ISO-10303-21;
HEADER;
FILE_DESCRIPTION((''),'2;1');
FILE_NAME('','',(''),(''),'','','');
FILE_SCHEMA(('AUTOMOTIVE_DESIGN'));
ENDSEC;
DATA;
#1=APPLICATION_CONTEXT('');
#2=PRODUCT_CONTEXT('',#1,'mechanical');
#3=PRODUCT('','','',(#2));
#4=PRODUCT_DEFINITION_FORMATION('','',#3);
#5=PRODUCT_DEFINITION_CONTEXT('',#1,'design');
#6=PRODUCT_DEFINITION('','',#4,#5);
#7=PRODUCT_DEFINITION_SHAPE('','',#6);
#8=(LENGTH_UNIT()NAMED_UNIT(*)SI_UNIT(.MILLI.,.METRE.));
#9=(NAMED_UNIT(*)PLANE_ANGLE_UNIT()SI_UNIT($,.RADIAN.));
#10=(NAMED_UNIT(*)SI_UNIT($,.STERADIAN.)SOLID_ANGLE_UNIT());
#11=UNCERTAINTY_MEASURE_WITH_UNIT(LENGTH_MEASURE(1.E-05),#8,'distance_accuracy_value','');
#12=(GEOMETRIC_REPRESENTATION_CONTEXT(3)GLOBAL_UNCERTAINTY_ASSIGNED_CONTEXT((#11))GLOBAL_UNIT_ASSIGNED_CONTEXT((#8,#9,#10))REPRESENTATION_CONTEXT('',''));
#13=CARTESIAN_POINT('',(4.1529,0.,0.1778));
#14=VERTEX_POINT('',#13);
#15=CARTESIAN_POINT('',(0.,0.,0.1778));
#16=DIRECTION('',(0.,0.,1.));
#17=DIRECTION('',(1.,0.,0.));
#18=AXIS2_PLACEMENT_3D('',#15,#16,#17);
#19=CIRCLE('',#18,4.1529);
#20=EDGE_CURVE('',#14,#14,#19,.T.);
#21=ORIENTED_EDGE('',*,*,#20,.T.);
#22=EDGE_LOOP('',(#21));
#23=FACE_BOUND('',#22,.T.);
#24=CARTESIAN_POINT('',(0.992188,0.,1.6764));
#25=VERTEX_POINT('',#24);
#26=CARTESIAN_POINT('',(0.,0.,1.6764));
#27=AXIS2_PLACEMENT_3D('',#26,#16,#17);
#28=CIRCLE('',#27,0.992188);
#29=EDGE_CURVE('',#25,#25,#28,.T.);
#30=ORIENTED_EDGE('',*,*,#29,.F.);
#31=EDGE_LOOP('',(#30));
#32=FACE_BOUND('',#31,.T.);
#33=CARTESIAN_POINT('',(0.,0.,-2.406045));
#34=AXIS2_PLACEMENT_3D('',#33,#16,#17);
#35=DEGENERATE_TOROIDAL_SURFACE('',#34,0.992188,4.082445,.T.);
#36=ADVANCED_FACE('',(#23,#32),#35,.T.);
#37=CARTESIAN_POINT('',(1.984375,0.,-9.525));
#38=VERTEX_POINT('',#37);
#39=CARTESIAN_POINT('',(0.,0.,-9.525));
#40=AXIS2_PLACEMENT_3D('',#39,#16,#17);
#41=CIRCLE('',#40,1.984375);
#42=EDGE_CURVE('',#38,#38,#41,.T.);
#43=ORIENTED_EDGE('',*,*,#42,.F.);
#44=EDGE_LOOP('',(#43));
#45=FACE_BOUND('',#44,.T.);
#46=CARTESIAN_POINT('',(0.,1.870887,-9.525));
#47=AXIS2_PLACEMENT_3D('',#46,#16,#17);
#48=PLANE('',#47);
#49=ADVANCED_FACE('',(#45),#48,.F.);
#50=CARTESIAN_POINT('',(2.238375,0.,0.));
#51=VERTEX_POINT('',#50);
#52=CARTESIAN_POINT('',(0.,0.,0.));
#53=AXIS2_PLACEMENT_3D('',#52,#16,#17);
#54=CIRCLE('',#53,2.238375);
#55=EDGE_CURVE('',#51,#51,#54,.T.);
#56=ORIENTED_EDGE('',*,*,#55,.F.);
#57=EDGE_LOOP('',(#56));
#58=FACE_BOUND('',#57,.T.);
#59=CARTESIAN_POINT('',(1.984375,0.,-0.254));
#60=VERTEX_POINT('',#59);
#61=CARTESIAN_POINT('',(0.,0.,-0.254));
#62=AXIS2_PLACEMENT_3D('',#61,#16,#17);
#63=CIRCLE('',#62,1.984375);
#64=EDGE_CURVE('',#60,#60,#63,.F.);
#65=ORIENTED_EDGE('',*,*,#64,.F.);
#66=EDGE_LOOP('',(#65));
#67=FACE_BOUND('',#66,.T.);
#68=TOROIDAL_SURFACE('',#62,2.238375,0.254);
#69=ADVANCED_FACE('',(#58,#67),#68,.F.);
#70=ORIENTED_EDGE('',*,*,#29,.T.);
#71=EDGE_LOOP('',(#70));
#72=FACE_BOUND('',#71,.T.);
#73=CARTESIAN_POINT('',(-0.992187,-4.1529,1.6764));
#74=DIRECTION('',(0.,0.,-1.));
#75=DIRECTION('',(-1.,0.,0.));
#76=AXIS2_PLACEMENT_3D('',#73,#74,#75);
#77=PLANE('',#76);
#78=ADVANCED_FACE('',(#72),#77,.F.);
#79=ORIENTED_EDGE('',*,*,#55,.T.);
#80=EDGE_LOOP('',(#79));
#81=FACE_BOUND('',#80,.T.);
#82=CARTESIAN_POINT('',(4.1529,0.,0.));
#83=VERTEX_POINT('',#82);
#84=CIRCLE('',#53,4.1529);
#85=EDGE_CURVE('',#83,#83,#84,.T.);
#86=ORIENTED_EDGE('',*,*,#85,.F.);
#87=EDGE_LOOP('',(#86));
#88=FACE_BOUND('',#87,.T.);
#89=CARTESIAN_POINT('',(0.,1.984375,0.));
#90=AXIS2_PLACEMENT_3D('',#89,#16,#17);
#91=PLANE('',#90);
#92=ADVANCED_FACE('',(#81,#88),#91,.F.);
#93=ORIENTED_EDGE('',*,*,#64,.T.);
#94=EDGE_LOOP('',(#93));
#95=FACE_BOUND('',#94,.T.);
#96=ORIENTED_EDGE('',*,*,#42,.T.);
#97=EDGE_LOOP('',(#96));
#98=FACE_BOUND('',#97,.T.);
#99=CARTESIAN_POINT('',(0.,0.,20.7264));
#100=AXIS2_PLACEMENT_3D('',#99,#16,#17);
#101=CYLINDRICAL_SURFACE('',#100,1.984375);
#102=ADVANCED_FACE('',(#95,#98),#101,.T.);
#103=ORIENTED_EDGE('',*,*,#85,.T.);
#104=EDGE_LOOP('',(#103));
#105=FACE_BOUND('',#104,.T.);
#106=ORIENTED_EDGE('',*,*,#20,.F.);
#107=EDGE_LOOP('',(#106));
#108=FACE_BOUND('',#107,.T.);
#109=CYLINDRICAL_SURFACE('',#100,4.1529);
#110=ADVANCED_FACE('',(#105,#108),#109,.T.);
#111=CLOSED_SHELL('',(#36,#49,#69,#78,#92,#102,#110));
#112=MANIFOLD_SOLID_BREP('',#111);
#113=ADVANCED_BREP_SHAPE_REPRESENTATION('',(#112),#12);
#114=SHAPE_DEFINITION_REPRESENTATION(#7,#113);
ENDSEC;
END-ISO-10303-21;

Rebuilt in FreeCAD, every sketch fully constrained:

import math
import FreeCAD as App
import Part
import Sketcher

V = App.Vector
Q = App.Units.Quantity


def edges_at(feature, points):
    """Names of the edges that pass closest to the given points."""
    edges = feature.Shape.Edges
    near = lambda p: min(range(len(edges)), key=lambda i: edges[i].distToShape(Part.Vertex(*p))[0])
    return sorted({f"Edge{near(p) + 1}" for p in points})


def add_polygon(sketch, points):
    """Adds a closed chain of lines whose ends are joined by coincident constraints."""
    first, n = sketch.GeometryCount, len(points)
    for a, b in zip(points, points[1:] + points[:1]):
        sketch.addGeometry(Part.LineSegment(App.Vector(*a, 0), App.Vector(*b, 0)), False)
    for i in range(n):
        sketch.addConstraint(Sketcher.Constraint("Coincident", first + i, 2, first + (i + 1) % n, 1))

doc = App.newDocument("Part")
body = doc.addObject("PartDesign::Body", "Body")

# Sketch on YZ plane
sketch1 = body.newObject("Sketcher::SketchObject", "Sketch")
sketch1.AttachmentSupport = (doc.getObject("YZ_Plane"), [""])
sketch1.MapMode = "FlatFace"
sketch1.addGeometry(Part.LineSegment(V(0.992188, 20.7264, 0), V(0, 20.7264, 0)), False)
sketch1.addGeometry(Part.LineSegment(V(0, 20.7264, 0), V(0, -9.525, 0)), False)
sketch1.addGeometry(Part.LineSegment(V(0, -9.525, 0), V(1.984375, -9.525, 0)), False)
sketch1.addGeometry(Part.LineSegment(V(1.984375, -9.525, 0), V(1.984375, 0, 0)), False)
sketch1.addGeometry(Part.LineSegment(V(1.984375, 0, 0), V(4.1529, 0, 0)), False)
sketch1.addGeometry(Part.LineSegment(V(4.1529, 0, 0), V(4.1529, 0.1778, 0)), False)
sketch1.addGeometry(Part.ArcOfCircle(Part.Circle(V(0.992188, -2.406045, 0), V(0, 0, 1), 4.082445), math.radians(39.265596), math.radians(90)), False)
sketch1.addGeometry(Part.LineSegment(V(0.992188, 1.6764, 0), V(0.992188, 20.7264, 0)), False)
sketch1.addConstraint(Sketcher.Constraint("Coincident", 0, 2, 1, 1))
sketch1.addConstraint(Sketcher.Constraint("Coincident", 1, 2, 2, 1))
sketch1.addConstraint(Sketcher.Constraint("Coincident", 2, 2, 3, 1))
sketch1.addConstraint(Sketcher.Constraint("Coincident", 3, 2, 4, 1))
sketch1.addConstraint(Sketcher.Constraint("Coincident", 4, 2, 5, 1))
sketch1.addConstraint(Sketcher.Constraint("Coincident", 5, 2, 6, 1))
sketch1.addConstraint(Sketcher.Constraint("Coincident", 6, 2, 7, 1))
sketch1.addConstraint(Sketcher.Constraint("Coincident", 7, 2, 0, 1))
sketch1.addConstraint(Sketcher.Constraint("Horizontal", 0))
sketch1.addConstraint(Sketcher.Constraint("Vertical", 1))
sketch1.addConstraint(Sketcher.Constraint("Horizontal", 2))
sketch1.addConstraint(Sketcher.Constraint("Vertical", 3))
sketch1.addConstraint(Sketcher.Constraint("Horizontal", 4))
sketch1.addConstraint(Sketcher.Constraint("Vertical", 5))
sketch1.addConstraint(Sketcher.Constraint("Vertical", 7))
sketch1.addConstraint(Sketcher.Constraint("PointOnObject", 0, 2, -2))
sketch1.addConstraint(Sketcher.Constraint("PointOnObject", 3, 2, -1))
sketch1.addConstraint(Sketcher.Constraint("DistanceY", 7, 1, 7, 2, Q("0.75 in")))
sketch1.addConstraint(Sketcher.Constraint("DistanceX", 2, 1, 2, 2, Q("0.078125 in")))
sketch1.addConstraint(Sketcher.Constraint("DistanceY", 1, 2, 1, 1, Q("1.191 in")))
sketch1.addConstraint(Sketcher.Constraint("DistanceY", 3, 1, 3, 2, Q("0.375 in")))
sketch1.addConstraint(Sketcher.Constraint("DistanceY", 5, 1, 5, 2, Q("0.007 in")))
sketch1.addConstraint(Sketcher.Constraint("DistanceX", -1, 1, 4, 2, Q("0.1635 in")))
sketch1.addConstraint(Sketcher.Constraint("Radius", 6, Q("4.082445 mm")))
sketch1.addConstraint(Sketcher.Constraint("DistanceX", 0, 2, 0, 1, Q("0.992188 mm")))
revolution = body.newObject("PartDesign::Revolution", "Revolution")
revolution.Profile = sketch1
revolution.ReferenceAxis = (sketch1, ["V_Axis"])
revolution.Angle = 360

# Sketch on XZ plane
sketch2 = body.newObject("Sketcher::SketchObject", "Sketch001")
sketch2.AttachmentSupport = (doc.getObject("XZ_Plane"), [""])
sketch2.MapMode = "FlatFace"
add_polygon(sketch2, [(1.195388, 19.168541), (0, 20.7264), (-1.195388, 19.168541), (-1.195388, 21.2344), (1.195388, 21.2344)])  # lines 0-4
sketch2.addConstraint(Sketcher.Constraint("Vertical", 2))
sketch2.addConstraint(Sketcher.Constraint("Horizontal", 3))
sketch2.addConstraint(Sketcher.Constraint("Vertical", 4))
sketch2.addConstraint(Sketcher.Constraint("Symmetric", 1, 2, 4, 2, -2))
sketch2.addConstraint(Sketcher.Constraint("PointOnObject", 0, 2, -2))
sketch2.addConstraint(Sketcher.Constraint("Angle", 0, Q("127.5 deg")))
sketch2.addConstraint(Sketcher.Constraint("DistanceY", 0, 2, 2, 2, Q("0.02 in")))
sketch2.addConstraint(Sketcher.Constraint("DistanceY", -1, 1, 0, 2, Q("0.816 in")))
sketch2.addConstraint(Sketcher.Constraint("DistanceY", 2, 1, 2, 2, Q("2.065859 mm")))
pocket1 = body.newObject("PartDesign::Pocket", "Pocket")
pocket1.Profile = sketch2
pocket1.Type = "ThroughAll"
pocket1.Midplane = True

# Sketch on YZ plane
sketch3 = body.newObject("Sketcher::SketchObject", "Sketch002")
sketch3.AttachmentSupport = (doc.getObject("YZ_Plane"), [""])
sketch3.MapMode = "FlatFace"
add_polygon(sketch3, [(0, 20.7264), (1.309687, 19.433356), (1.309687, 21.0439), (-1.309687, 21.0439), (-1.309687, 19.433356)])  # lines 0-4
sketch3.addConstraint(Sketcher.Constraint("Vertical", 1))
sketch3.addConstraint(Sketcher.Constraint("Horizontal", 2))
sketch3.addConstraint(Sketcher.Constraint("Vertical", 3))
sketch3.addConstraint(Sketcher.Constraint("Symmetric", 0, 2, 3, 2, -2))
sketch3.addConstraint(Sketcher.Constraint("PointOnObject", 4, 2, -2))
sketch3.addConstraint(Sketcher.Constraint("DistanceY", -1, 1, 4, 2, Q("0.816 in")))
sketch3.addConstraint(Sketcher.Constraint("DistanceY", -1, 1, 1, 2, Q("0.8285 in")))
sketch3.addConstraint(Sketcher.Constraint("DistanceX", 2, 2, 2, 1, Q("2.619375 mm")))
sketch3.addConstraint(Sketcher.Constraint("DistanceY", 1, 1, 1, 2, Q("1.610544 mm")))
pocket2 = body.newObject("PartDesign::Pocket", "Pocket001")
pocket2.Profile = sketch3
pocket2.Type = "ThroughAll"
pocket2.Midplane = True
doc.recompute()

fillet = body.newObject("PartDesign::Fillet", "Fillet")
fillet.Base = (pocket2, edges_at(pocket2, [(-1.984, 0, 0)]))
fillet.Radius = Q("0.01 in")

# Sketch on YZ plane
sketch4 = body.newObject("Sketcher::SketchObject", "Sketch003")
sketch4.AttachmentSupport = (doc.getObject("YZ_Plane"), [""])
sketch4.MapMode = "FlatFace"
sketch4.addGeometry(Part.LineSegment(V(0.992188, 6.4389, 0), V(0.992188, 6.5913, 0)), False)
sketch4.addGeometry(Part.ArcOfCircle(Part.Circle(V(0.992188, 6.5151, 0), V(0, 0, 1), 0.0762), math.radians(90), math.radians(270)), False)
sketch4.addConstraint(Sketcher.Constraint("Coincident", 0, 1, 1, 2))
sketch4.addConstraint(Sketcher.Constraint("Coincident", 1, 1, 0, 2))
sketch4.addConstraint(Sketcher.Constraint("Vertical", 0))
sketch4.addConstraint(Sketcher.Constraint("Vertical", 1, 3, 0, 1))
sketch4.addConstraint(Sketcher.Constraint("Radius", 1, Q("0.003 in")))
sketch4.addConstraint(Sketcher.Constraint("DistanceY", -1, 1, 1, 3, Q("0.2565 in")))
sketch4.addConstraint(Sketcher.Constraint("DistanceX", -1, 1, 1, 3, Q("0.992188 mm")))
groove = body.newObject("PartDesign::Groove", "Groove")
groove.Profile = sketch4
groove.ReferenceAxis = (sketch4, ["V_Axis"])
groove.Angle = 360
doc.recompute()

linearpattern = body.newObject("PartDesign::LinearPattern", "LinearPattern")
linearpattern.Originals = [groove]
linearpattern.Direction = (doc.getObject("Z_Axis"), [""])
linearpattern.Mode = "offset"
linearpattern.Offset = Q("0.03 in")
linearpattern.Occurrences = 18
body.Tip = linearpattern

# Sketch on XZ plane
sketch5 = body.newObject("Sketcher::SketchObject", "Sketch004")
sketch5.AttachmentSupport = (doc.getObject("XZ_Plane"), [""])
sketch5.MapMode = "FlatFace"
add_polygon(sketch5, [(-0.992188, 1.6764), (-0.992188, 21.996576), (1.64574, 21.996576), (1.64574, 1.6764)])  # lines 0-3
sketch5.addConstraint(Sketcher.Constraint("Vertical", 0))
sketch5.addConstraint(Sketcher.Constraint("Horizontal", 1))
sketch5.addConstraint(Sketcher.Constraint("Vertical", 2))
sketch5.addConstraint(Sketcher.Constraint("Horizontal", 3))
sketch5.addConstraint(Sketcher.Constraint("DistanceY", -1, 1, 2, 2, Q("0.066 in")))
sketch5.addConstraint(Sketcher.Constraint("DistanceX", 1, 1, 1, 2, Q("2.637927 mm")))
sketch5.addConstraint(Sketcher.Constraint("DistanceY", 0, 1, 0, 2, Q("20.320176 mm")))
sketch5.addConstraint(Sketcher.Constraint("DistanceX", -1, 1, 1, 2, Q("1.64574 mm")))
pocket3 = body.newObject("PartDesign::Pocket", "Pocket002")
pocket3.Profile = sketch5
pocket3.Type = "ThroughAll"
pocket3.Midplane = True

doc.recompute()
